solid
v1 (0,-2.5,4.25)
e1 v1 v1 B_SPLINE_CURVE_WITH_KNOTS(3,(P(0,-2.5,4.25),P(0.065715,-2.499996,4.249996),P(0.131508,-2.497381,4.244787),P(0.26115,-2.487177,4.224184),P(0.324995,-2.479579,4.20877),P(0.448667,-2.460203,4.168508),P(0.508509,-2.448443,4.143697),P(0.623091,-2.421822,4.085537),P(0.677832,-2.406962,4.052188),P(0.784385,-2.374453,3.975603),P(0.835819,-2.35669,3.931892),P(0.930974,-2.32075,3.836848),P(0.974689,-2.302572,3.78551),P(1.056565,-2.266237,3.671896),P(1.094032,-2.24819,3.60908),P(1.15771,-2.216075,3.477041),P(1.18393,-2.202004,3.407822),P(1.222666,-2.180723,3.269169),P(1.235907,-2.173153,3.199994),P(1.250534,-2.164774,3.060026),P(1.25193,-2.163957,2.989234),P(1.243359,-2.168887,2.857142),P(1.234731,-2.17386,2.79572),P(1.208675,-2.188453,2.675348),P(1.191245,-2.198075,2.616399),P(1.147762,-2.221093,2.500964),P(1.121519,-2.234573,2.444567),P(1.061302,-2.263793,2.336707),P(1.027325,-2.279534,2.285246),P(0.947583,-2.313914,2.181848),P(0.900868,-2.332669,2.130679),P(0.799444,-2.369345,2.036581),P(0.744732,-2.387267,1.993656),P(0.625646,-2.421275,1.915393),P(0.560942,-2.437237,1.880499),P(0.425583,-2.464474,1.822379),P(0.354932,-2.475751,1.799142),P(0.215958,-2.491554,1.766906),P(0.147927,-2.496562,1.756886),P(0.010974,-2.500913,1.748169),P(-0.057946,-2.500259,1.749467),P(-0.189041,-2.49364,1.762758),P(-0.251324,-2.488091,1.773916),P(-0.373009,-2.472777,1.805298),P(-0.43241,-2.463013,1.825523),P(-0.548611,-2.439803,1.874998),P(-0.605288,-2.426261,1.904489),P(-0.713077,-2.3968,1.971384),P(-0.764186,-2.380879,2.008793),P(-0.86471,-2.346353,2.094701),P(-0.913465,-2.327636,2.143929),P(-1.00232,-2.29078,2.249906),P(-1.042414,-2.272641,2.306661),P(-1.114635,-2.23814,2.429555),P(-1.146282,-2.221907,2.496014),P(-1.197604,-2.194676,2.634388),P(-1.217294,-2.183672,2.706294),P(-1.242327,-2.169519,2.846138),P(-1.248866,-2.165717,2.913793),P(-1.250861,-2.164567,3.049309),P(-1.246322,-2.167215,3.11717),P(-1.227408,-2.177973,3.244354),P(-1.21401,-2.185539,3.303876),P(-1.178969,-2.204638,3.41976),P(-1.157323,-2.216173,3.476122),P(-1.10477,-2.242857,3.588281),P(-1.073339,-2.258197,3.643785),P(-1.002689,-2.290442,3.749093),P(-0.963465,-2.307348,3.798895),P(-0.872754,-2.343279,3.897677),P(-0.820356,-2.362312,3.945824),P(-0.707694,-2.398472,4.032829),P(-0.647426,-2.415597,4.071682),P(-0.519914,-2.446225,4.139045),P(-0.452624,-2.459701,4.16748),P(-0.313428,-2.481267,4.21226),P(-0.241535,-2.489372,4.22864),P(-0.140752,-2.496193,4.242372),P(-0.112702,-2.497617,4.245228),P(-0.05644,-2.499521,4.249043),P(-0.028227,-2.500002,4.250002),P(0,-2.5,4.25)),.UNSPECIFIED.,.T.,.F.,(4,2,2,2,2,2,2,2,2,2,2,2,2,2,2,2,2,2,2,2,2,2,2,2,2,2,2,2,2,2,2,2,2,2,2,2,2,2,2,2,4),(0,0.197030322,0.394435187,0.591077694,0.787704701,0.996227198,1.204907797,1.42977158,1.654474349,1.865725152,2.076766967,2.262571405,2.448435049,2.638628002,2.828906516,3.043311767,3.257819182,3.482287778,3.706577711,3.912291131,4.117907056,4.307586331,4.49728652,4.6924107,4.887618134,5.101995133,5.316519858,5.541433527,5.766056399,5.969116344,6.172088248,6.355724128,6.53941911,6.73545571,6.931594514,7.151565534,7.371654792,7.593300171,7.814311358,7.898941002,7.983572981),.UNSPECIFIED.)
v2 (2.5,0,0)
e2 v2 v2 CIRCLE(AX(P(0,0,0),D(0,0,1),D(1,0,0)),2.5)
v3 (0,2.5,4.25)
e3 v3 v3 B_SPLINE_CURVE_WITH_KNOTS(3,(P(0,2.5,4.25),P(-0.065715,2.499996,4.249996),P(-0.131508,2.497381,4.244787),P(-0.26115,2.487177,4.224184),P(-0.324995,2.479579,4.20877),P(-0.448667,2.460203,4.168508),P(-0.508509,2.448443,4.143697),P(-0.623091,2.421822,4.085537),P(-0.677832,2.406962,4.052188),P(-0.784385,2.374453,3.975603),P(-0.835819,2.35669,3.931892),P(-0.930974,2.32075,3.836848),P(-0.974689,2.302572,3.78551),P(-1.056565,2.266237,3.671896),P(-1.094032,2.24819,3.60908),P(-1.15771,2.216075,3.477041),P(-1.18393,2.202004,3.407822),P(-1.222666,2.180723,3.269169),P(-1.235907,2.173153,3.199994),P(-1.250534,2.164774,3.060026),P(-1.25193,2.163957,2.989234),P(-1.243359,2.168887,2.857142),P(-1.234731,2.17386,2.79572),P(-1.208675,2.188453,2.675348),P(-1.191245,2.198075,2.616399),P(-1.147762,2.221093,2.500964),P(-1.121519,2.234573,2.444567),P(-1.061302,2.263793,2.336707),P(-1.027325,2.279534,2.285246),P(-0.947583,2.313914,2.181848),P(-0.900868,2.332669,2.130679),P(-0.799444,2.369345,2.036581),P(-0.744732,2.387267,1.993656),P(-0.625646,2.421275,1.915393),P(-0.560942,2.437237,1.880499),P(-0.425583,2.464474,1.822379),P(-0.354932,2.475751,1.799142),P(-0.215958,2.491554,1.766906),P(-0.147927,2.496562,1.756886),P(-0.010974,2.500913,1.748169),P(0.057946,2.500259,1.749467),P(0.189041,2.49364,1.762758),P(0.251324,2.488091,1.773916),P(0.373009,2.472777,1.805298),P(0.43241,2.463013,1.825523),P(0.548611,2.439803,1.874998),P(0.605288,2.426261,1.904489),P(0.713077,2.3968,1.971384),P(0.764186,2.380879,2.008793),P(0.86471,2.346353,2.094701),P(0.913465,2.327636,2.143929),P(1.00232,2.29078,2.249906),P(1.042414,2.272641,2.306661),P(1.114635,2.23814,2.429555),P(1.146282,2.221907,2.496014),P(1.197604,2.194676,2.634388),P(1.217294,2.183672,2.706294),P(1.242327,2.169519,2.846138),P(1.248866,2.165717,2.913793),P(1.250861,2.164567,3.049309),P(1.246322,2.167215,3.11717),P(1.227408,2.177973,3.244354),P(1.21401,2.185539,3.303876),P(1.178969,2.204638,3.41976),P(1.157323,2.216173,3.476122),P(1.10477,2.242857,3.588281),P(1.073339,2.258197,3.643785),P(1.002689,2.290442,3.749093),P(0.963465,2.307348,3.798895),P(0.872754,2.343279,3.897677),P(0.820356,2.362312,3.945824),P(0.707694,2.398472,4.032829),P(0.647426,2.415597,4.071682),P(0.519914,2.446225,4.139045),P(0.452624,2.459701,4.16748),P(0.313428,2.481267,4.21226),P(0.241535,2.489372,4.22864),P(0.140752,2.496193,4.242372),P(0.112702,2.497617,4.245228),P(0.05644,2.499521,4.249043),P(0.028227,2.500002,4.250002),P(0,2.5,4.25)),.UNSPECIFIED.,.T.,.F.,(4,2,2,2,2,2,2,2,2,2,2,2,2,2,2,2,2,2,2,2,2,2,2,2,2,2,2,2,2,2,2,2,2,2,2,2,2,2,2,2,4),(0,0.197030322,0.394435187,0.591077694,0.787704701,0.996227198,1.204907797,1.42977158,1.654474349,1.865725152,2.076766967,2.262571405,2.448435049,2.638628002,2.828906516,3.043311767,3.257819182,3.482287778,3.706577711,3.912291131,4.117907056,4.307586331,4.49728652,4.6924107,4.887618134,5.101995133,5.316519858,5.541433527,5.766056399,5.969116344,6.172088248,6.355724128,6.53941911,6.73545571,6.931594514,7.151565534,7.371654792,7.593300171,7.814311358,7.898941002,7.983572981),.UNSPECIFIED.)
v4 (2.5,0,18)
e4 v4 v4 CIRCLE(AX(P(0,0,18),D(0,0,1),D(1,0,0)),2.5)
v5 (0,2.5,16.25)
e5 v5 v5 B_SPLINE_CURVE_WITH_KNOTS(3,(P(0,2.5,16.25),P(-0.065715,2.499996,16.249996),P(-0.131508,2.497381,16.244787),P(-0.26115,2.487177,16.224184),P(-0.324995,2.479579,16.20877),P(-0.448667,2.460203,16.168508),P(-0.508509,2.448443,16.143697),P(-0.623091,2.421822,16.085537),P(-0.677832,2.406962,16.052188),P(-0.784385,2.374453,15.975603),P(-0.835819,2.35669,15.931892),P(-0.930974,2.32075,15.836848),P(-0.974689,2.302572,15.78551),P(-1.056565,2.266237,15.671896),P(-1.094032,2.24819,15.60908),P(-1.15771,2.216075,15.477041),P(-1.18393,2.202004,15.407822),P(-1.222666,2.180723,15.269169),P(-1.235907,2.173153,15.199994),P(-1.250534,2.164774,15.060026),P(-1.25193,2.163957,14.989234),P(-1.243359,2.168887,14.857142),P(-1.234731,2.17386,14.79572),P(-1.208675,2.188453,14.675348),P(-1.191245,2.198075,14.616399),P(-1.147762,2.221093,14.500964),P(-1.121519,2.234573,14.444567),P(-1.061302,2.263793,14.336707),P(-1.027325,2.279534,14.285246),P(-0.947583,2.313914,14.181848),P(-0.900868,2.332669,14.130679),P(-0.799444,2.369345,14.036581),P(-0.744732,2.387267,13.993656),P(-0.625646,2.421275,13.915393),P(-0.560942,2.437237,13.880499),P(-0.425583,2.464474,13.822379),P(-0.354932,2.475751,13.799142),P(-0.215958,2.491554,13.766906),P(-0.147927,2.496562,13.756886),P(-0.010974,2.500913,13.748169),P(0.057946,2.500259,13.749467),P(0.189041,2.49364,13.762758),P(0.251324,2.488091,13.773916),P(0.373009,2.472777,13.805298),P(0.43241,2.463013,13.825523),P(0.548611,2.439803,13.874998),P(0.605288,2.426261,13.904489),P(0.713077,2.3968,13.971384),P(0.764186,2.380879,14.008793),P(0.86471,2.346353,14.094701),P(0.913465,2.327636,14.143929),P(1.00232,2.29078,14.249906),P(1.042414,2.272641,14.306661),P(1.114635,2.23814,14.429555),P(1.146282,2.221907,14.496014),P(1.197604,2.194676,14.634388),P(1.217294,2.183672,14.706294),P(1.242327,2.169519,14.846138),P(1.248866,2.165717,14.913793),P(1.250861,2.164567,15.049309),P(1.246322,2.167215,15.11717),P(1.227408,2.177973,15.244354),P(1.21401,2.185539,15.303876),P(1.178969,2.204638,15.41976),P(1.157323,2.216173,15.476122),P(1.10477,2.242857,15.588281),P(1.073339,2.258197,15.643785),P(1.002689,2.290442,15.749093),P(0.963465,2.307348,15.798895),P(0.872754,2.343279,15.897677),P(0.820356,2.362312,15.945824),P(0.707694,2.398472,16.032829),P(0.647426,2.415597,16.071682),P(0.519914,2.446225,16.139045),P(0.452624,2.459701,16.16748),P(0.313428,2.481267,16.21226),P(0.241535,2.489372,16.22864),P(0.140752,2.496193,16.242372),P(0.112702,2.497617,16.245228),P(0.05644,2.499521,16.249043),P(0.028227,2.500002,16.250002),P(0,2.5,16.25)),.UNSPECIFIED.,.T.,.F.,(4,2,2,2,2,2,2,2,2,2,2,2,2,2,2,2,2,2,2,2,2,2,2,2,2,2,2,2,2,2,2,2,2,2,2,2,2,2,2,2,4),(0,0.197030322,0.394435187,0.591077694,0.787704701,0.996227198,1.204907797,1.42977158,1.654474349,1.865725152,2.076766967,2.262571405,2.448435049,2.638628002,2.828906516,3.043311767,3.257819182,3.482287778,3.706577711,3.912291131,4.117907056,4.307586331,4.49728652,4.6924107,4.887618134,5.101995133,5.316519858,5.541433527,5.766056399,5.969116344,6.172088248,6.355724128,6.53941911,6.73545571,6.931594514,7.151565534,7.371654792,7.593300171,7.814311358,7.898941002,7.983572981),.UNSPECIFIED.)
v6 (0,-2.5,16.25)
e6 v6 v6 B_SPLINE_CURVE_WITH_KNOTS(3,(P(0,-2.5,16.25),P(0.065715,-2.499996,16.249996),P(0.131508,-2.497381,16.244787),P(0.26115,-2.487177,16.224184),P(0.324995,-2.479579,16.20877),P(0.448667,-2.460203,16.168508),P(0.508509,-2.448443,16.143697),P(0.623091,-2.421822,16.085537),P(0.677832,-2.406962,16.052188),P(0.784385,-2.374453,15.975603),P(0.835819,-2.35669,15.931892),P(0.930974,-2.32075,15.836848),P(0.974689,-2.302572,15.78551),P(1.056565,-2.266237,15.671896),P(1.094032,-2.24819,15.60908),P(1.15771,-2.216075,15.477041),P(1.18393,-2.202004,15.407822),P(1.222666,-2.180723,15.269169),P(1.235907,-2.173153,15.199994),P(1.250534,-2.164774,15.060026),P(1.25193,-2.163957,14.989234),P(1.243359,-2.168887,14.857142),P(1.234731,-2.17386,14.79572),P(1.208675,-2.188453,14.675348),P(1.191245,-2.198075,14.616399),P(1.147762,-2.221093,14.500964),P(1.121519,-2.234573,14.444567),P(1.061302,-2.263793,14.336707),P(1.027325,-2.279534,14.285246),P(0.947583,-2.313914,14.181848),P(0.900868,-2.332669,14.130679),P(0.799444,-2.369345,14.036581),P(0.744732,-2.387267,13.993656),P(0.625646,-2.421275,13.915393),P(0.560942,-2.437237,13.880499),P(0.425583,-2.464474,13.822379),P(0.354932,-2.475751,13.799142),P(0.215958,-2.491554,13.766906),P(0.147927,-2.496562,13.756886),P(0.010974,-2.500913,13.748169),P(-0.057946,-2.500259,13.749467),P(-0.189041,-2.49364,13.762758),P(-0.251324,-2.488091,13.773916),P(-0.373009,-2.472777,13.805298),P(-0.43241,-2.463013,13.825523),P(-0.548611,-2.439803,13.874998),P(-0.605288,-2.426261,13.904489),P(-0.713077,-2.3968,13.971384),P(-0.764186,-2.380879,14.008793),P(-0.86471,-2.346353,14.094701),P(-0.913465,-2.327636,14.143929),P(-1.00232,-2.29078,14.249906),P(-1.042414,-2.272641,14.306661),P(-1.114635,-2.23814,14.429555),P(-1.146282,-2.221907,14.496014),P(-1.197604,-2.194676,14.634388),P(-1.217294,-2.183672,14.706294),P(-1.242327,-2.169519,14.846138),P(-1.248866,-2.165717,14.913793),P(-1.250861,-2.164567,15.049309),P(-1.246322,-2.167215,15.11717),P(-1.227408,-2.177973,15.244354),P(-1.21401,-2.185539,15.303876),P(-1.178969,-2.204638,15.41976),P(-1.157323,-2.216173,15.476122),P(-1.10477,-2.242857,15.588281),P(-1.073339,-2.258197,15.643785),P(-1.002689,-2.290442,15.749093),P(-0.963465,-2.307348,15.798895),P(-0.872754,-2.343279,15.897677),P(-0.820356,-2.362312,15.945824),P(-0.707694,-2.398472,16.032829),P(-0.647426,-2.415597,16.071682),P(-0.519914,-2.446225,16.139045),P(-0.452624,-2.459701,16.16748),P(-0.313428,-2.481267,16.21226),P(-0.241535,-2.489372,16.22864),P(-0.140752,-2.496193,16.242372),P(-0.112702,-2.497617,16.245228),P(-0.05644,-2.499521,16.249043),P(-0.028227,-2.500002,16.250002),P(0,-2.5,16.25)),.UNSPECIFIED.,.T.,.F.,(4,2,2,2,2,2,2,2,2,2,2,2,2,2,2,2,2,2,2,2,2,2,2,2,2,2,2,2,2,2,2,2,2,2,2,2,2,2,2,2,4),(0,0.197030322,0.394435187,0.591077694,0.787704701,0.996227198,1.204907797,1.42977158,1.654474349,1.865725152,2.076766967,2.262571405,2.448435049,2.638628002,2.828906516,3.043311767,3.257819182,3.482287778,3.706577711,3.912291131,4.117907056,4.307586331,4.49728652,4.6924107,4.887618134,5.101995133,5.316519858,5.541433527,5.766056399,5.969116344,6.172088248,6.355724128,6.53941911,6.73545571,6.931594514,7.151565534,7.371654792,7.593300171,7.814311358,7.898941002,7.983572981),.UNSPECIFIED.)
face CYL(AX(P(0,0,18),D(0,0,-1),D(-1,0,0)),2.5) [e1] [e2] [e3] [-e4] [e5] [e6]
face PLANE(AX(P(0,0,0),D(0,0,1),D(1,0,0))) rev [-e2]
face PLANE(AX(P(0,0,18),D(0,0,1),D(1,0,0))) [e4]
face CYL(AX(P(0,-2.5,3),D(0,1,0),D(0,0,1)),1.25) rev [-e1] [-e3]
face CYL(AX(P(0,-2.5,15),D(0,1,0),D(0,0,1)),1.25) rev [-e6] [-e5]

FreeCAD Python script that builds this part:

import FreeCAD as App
import Part
import Sketcher
from FreeCAD import Vector

doc = App.newDocument("Part")
params = doc.addObject("Spreadsheet::Sheet", "Params")
for row, (alias, value) in enumerate([
    ("sketch1_diameter", "5 mm"),
    ("pad1_length", "18 mm"),
    ("sketch2_diameter", "2.5 mm"),
], start=1):
    params.set(f"A{row}", alias)
    params.set(f"B{row}", "=" + value)
    params.setAlias(f"B{row}", alias)

body = doc.addObject("PartDesign::Body", "Body")

# Sketch on XY plane
sketch1 = body.newObject("Sketcher::SketchObject", "Sketch")
sketch1.AttachmentSupport = (doc.getObject("XY_Plane"), [""])
sketch1.MapMode = "FlatFace"
sketch1.addGeometry(Part.Circle(Vector(0, 0, 0), Vector(0, 0, 1), 2.5), False)
sketch1.addConstraint([
    Sketcher.Constraint("Coincident", 0, 3, -1, 1),
    Sketcher.Constraint("Diameter", 0, 5.0),
])
sketch1.setExpression("Constraints[1]", "Params.sketch1_diameter")
pad1 = body.newObject("PartDesign::Pad", "Pad")
pad1.Profile = sketch1
pad1.setExpression("Length", "Params.pad1_length")

# Sketch on XZ plane
sketch2 = body.newObject("Sketcher::SketchObject", "Sketch001")
sketch2.AttachmentSupport = (doc.getObject("XZ_Plane"), [""])
sketch2.MapMode = "FlatFace"
sketch2.addGeometry([
    Part.Circle(Vector(0, 3, 0), Vector(0, 0, 1), 1.2),
    Part.Circle(Vector(0, 15, 0), Vector(0, 0, 1), 1.2),
], False)
sketch2.addConstraint([
    Sketcher.Constraint("Equal", 0, 1),
    Sketcher.Constraint("PointOnObject", 0, 3, -2),
    Sketcher.Constraint("PointOnObject", 1, 3, -2),
    Sketcher.Constraint("Diameter", 0, 2.5),
    Sketcher.Constraint("DistanceY", -1, 1, 0, 3, 3.0),
    Sketcher.Constraint("DistanceY", -1, 1, 1, 3, 15.0),
])
sketch2.setExpression("Constraints[3]", "Params.sketch2_diameter")
pocket1 = body.newObject("PartDesign::Pocket", "Pocket")
pocket1.Profile = sketch2
pocket1.Type = "ThroughAll"
pocket1.Midplane = True

doc.recompute()
